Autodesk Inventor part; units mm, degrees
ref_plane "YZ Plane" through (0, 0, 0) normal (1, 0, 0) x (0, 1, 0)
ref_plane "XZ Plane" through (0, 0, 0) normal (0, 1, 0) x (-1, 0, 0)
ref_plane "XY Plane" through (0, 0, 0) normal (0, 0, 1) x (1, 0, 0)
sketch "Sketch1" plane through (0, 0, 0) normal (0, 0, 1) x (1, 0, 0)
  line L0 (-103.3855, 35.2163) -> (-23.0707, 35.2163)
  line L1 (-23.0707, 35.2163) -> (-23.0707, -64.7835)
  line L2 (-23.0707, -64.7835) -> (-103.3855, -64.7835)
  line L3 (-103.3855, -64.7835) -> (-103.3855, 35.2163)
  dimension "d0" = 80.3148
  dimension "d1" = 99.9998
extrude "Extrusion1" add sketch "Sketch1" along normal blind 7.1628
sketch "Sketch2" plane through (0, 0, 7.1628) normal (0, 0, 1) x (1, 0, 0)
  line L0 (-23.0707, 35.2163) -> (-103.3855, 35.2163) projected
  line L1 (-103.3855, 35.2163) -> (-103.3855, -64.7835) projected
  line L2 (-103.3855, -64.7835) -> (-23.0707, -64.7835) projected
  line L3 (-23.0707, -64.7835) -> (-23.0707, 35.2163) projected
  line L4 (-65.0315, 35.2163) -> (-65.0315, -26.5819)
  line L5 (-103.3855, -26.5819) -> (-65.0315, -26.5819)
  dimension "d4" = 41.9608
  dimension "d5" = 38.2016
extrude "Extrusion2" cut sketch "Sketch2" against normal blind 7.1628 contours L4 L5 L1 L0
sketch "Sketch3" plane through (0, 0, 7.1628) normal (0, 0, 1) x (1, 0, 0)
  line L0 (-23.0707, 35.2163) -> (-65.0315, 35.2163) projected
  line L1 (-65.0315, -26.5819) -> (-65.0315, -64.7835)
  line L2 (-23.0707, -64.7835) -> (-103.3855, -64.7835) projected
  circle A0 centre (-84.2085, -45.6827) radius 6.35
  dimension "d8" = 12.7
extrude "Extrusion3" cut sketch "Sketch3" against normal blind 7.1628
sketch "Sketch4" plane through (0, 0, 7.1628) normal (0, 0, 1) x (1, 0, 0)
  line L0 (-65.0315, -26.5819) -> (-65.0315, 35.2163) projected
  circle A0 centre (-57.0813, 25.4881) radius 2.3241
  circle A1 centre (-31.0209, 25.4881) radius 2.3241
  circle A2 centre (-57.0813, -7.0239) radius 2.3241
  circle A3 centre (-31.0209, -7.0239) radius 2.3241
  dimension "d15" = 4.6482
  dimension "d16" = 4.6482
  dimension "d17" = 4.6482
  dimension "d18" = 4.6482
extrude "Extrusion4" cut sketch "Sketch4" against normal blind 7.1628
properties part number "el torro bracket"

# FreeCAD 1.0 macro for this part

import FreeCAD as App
import Part
import Sketcher
Q = App.Units.Quantity


def add_polygon(sketch, points):
    """Adds a closed chain of lines whose ends are joined by coincident constraints."""
    first, n = sketch.GeometryCount, len(points)
    for a, b in zip(points, points[1:] + points[:1]):
        sketch.addGeometry(Part.LineSegment(App.Vector(*a, 0), App.Vector(*b, 0)), False)
    for i in range(n):
        sketch.addConstraint(Sketcher.Constraint("Coincident", first + i, 2, first + (i + 1) % n, 1))

doc = App.newDocument("Part")
body = doc.addObject("PartDesign::Body", "Body")

# Sketch on XY plane
sketch1 = body.newObject("Sketcher::SketchObject", "Sketch")
sketch1.AttachmentSupport = (doc.getObject("XY_Plane"), [""])
sketch1.MapMode = "FlatFace"
add_polygon(sketch1, [(-23.0707, 35.2163), (-103.3855, 35.2163), (-103.3855, -64.7835), (-23.0707, -64.7835)])  # lines 0-3
sketch1.addConstraint([
    Sketcher.Constraint("Horizontal", 0),
    Sketcher.Constraint("Vertical", 1),
    Sketcher.Constraint("Horizontal", 2),
    Sketcher.Constraint("Vertical", 3),
    Sketcher.Constraint("DistanceX", 0, 2, 0, 1, Q("3.162 in")),
    Sketcher.Constraint("DistanceY", 1, 2, 1, 1, Q("3.937 in")),
    Sketcher.Constraint("DistanceX", 0, 2, -1, 1, Q("4.0703 in")),
    Sketcher.Constraint("DistanceY", -1, 1, 0, 2, Q("35.2163 mm")),
])
pad1 = body.newObject("PartDesign::Pad", "Pad")
pad1.Profile = sketch1
pad1.Length = Q("0.282 in")

# Sketch on XY plane
sketch2 = body.newObject("Sketcher::SketchObject", "Sketch001")
sketch2.AttachmentSupport = (doc.getObject("XY_Plane"), [""])
sketch2.MapMode = "FlatFace"
sketch2.AttachmentOffset = App.Placement(App.Vector(0, 0, 0.282 * 25.4), App.Rotation())
add_polygon(sketch2, [(-65.0315, -26.5819), (-65.0315, 35.2163), (-103.3855, 35.2163), (-103.3855, -26.5819)])  # lines 0-3
sketch2.addConstraint([
    Sketcher.Constraint("Vertical", 0),
    Sketcher.Constraint("Horizontal", 1),
    Sketcher.Constraint("Vertical", 2),
    Sketcher.Constraint("Horizontal", 3),
    Sketcher.Constraint("DistanceX", 1, 2, 1, 1, Q("1.51 in")),
    Sketcher.Constraint("DistanceY", 0, 1, 0, 2, Q("2.433 in")),
    Sketcher.Constraint("DistanceX", 0, 2, -1, 1, Q("2.5603 in")),
    Sketcher.Constraint("DistanceY", -1, 1, 0, 2, Q("35.2163 mm")),
])
pocket1 = body.newObject("PartDesign::Pocket", "Pocket")
pocket1.Profile = sketch2
pocket1.Length = Q("0.282 in")

# Sketch on XY plane
sketch3 = body.newObject("Sketcher::SketchObject", "Sketch002")
sketch3.AttachmentSupport = (doc.getObject("XY_Plane"), [""])
sketch3.MapMode = "FlatFace"
sketch3.AttachmentOffset = App.Placement(App.Vector(0, 0, 0.282 * 25.4), App.Rotation())
sketch3.addGeometry(Part.Circle(App.Vector(-84.2085, -45.6827, 0), App.Vector(0, 0, 1), 6.35), False)
sketch3.addConstraint([
    Sketcher.Constraint("Diameter", 0, Q("0.5 in")),
    Sketcher.Constraint("DistanceX", 0, 3, -1, 1, Q("3.3153 in")),
    Sketcher.Constraint("DistanceY", 0, 3, -1, 1, Q("45.6827 mm")),
])
pocket2 = body.newObject("PartDesign::Pocket", "Pocket001")
pocket2.Profile = sketch3
pocket2.Length = Q("0.282 in")

# Sketch on XY plane
sketch4 = body.newObject("Sketcher::SketchObject", "Sketch003")
sketch4.AttachmentSupport = (doc.getObject("XY_Plane"), [""])
sketch4.MapMode = "FlatFace"
sketch4.AttachmentOffset = App.Placement(App.Vector(0, 0, 0.282 * 25.4), App.Rotation())
sketch4.addGeometry([
    Part.Circle(App.Vector(-57.0813, 25.4881, 0), App.Vector(0, 0, 1), 2.3241),
    Part.Circle(App.Vector(-31.0209, 25.4881, 0), App.Vector(0, 0, 1), 2.3241),
    Part.Circle(App.Vector(-57.0813, -7.0239, 0), App.Vector(0, 0, 1), 2.3241),
    Part.Circle(App.Vector(-31.0209, -7.0239, 0), App.Vector(0, 0, 1), 2.3241),
], False)
sketch4.addConstraint([
    Sketcher.Constraint("Equal", 0, 1),
    Sketcher.Constraint("Equal", 1, 2),
    Sketcher.Constraint("Equal", 2, 3),
    Sketcher.Constraint("Horizontal", 0, 3, 1, 3),
    Sketcher.Constraint("Horizontal", 2, 3, 3, 3),
    Sketcher.Constraint("Vertical", 0, 3, 2, 3),
    Sketcher.Constraint("Vertical", 1, 3, 3, 3),
    Sketcher.Constraint("Diameter", 0, Q("0.183 in")),
    Sketcher.Constraint("DistanceY", 2, 3, 0, 3, Q("1.28 in")),
    Sketcher.Constraint("DistanceX", 0, 3, 1, 3, Q("1.026 in")),
    Sketcher.Constraint("DistanceX", 0, 3, -1, 1, Q("2.2473 in")),
    Sketcher.Constraint("DistanceY", -1, 1, 0, 3, Q("25.488 mm")),
])
pocket3 = body.newObject("PartDesign::Pocket", "Pocket002")
pocket3.Profile = sketch4
pocket3.Length = Q("0.282 in")

doc.recompute()
